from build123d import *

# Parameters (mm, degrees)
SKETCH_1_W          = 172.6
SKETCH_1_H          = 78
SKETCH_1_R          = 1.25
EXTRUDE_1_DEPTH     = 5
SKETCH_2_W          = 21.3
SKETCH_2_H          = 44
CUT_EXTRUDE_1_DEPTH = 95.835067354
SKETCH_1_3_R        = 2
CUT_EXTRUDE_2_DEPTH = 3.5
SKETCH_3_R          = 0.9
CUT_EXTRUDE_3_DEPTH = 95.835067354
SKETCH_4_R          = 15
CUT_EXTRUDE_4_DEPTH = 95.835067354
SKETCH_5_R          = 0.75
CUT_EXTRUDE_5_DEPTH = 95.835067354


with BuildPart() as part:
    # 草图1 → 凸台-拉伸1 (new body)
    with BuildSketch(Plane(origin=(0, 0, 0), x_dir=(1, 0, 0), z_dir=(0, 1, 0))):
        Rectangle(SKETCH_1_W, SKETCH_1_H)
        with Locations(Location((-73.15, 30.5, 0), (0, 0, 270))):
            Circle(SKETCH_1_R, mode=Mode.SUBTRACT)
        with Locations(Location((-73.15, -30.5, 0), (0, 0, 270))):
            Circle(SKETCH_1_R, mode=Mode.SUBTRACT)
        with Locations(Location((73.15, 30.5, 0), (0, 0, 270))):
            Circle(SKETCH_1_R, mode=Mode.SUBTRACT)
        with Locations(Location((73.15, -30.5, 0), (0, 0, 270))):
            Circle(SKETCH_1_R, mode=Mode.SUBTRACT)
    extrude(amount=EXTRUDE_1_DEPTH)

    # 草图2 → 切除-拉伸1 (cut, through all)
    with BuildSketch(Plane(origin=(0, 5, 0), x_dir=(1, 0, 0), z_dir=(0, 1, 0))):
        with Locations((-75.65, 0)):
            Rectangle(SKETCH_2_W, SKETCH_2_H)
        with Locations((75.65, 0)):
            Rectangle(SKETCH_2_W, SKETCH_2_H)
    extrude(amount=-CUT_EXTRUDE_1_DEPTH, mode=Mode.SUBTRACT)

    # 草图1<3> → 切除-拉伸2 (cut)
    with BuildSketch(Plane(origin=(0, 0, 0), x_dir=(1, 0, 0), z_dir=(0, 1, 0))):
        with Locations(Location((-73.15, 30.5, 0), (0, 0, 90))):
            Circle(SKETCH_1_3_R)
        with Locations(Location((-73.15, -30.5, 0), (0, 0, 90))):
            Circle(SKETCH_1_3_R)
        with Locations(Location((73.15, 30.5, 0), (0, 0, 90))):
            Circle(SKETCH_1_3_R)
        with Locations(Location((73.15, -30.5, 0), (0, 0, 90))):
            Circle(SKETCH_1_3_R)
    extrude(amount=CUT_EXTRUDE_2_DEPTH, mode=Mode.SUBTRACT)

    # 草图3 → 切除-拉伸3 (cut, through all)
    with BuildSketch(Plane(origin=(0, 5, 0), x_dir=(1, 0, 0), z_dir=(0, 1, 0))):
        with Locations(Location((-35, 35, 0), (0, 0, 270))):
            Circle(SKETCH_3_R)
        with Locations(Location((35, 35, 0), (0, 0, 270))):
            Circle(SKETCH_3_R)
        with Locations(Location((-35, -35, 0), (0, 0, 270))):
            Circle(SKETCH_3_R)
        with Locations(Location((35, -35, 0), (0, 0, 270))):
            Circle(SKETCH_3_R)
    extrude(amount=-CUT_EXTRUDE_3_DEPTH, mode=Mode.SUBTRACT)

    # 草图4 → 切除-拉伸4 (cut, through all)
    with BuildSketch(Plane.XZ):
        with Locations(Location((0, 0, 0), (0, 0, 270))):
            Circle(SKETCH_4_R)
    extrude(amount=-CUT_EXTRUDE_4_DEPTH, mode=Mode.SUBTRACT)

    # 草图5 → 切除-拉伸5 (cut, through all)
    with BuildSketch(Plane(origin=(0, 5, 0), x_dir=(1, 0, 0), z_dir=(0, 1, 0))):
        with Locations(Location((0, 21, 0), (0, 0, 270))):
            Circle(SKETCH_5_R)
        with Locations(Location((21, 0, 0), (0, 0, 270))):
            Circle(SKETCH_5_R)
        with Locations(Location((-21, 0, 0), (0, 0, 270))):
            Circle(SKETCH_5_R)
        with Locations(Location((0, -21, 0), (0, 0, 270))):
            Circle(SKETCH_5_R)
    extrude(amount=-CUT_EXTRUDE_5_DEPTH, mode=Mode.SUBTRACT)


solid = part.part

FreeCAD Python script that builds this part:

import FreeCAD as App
import Part
import Sketcher

V = App.Vector
Q = App.Units.Quantity

doc = App.newDocument("Part")
params = doc.addObject("Spreadsheet::Sheet", "Params")
for row, (alias, value) in enumerate([
    ("sketch1_diameter", "2.5 mm"),
    ("sketch1_height", "78 mm"),
    ("sketch1_width", "172.6 mm"),
    ("pad1_length", "5 mm"),
    ("sketch2_height", "44 mm"),
    ("sketch2_width", "21.3 mm"),
    ("sketch3_diameter", "4 mm"),
    ("pocket2_length", "3.5 mm"),
    ("sketch4_diameter", "1.8 mm"),
    ("sketch5_diameter", "30 mm"),
    ("sketch6_diameter", "1.5 mm"),
], start=1):
    params.set(f"A{row}", alias)
    params.set(f"B{row}", "=" + value)
    params.setAlias(f"B{row}", alias)

body = doc.addObject("PartDesign::Body", "Body")

# Sketch on XZ plane
sketch1 = doc.addObject("Sketcher::SketchObject", "Sketch")
body.addObject(sketch1)
sketch1.AttachmentSupport = (doc.XZ_Plane, [""])
sketch1.MapMode = "FlatFace"
sketch1.addGeometry([
    Part.LineSegment(V(-86.3, -39, 0), V(-86.3, 39, 0)),  # 0
    Part.LineSegment(V(-86.3, 39, 0), V(86.3, 39, 0)),  # 1
    Part.LineSegment(V(86.3, 39, 0), V(86.3, -39, 0)),  # 2
    Part.LineSegment(V(86.3, -39, 0), V(-86.3, -39, 0)),  # 3
    Part.Circle(V(-73.2, 30.5, 0), V(0, 0, 1), 1.2),  # 4
    Part.Circle(V(73.2, 30.5, 0), V(0, 0, 1), 1.2),  # 5
    Part.Circle(V(-73.2, -30.5, 0), V(0, 0, 1), 1.2),  # 6
    Part.Circle(V(73.2, -30.5, 0), V(0, 0, 1), 1.2),  # 7
], False)
sketch1.addConstraint([
    Sketcher.Constraint("Coincident", 0, 2, 1, 1),
    Sketcher.Constraint("Coincident", 1, 2, 2, 1),
    Sketcher.Constraint("Coincident", 2, 2, 3, 1),
    Sketcher.Constraint("Coincident", 3, 2, 0, 1),
    Sketcher.Constraint("Vertical", 0),
    Sketcher.Constraint("Horizontal", 1),
    Sketcher.Constraint("Vertical", 2),
    Sketcher.Constraint("Horizontal", 3),
    Sketcher.Constraint("Equal", 4, 5),
    Sketcher.Constraint("Equal", 5, 6),
    Sketcher.Constraint("Equal", 6, 7),
    Sketcher.Constraint("Symmetric", 5, 3, 6, 3, -1, 1),
    Sketcher.Constraint("Symmetric", 4, 3, 7, 3, -1, 1),
    Sketcher.Constraint("Symmetric", 0, 2, 2, 2, -1, 1),
    Sketcher.Constraint("Symmetric", 4, 3, 5, 3, -2),
    Sketcher.Constraint("Diameter", 4, Q("2.5 mm")),
    Sketcher.Constraint("DistanceY", 0, 1, 0, 2, Q("78 mm")),
    Sketcher.Constraint("DistanceX", 1, 1, 1, 2, Q("172.6 mm")),
    Sketcher.Constraint("DistanceY", 6, 3, 4, 3, Q("61 mm")),
    Sketcher.Constraint("DistanceX", 4, 3, 5, 3, Q("146.3 mm")),
])
sketch1.setExpression("Constraints[15]", "Params.sketch1_diameter")
sketch1.setExpression("Constraints[16]", "Params.sketch1_height")
sketch1.setExpression("Constraints[17]", "Params.sketch1_width")
pad1 = doc.addObject("PartDesign::Pad", "Pad")
body.addObject(pad1)
pad1.Profile = sketch1
pad1.setExpression("Length", "Params.pad1_length")
pad1.Reversed = True

# Sketch on XZ plane
sketch2 = doc.addObject("Sketcher::SketchObject", "Sketch001")
body.addObject(sketch2)
sketch2.AttachmentSupport = (doc.XZ_Plane, [""])
sketch2.MapMode = "FlatFace"
sketch2.AttachmentOffset = App.Placement(V(0, 0, -5), App.Rotation())
sketch2.addGeometry([
    Part.LineSegment(V(-86, -22, 0), V(-86, 22, 0)),  # 0
    Part.LineSegment(V(-86, 22, 0), V(-65, 22, 0)),  # 1
    Part.LineSegment(V(-65, 22, 0), V(-65, -22, 0)),  # 2
    Part.LineSegment(V(-65, -22, 0), V(-86, -22, 0)),  # 3
    Part.LineSegment(V(65, -22, 0), V(65, 22, 0)),  # 4
    Part.LineSegment(V(65, 22, 0), V(86, 22, 0)),  # 5
    Part.LineSegment(V(86, 22, 0), V(86, -22, 0)),  # 6
    Part.LineSegment(V(86, -22, 0), V(65, -22, 0)),  # 7
], False)
sketch2.addConstraint([
    Sketcher.Constraint("Coincident", 0, 2, 1, 1),
    Sketcher.Constraint("Coincident", 1, 2, 2, 1),
    Sketcher.Constraint("Coincident", 2, 2, 3, 1),
    Sketcher.Constraint("Coincident", 3, 2, 0, 1),
    Sketcher.Constraint("Coincident", 4, 2, 5, 1),
    Sketcher.Constraint("Coincident", 5, 2, 6, 1),
    Sketcher.Constraint("Coincident", 6, 2, 7, 1),
    Sketcher.Constraint("Coincident", 7, 2, 4, 1),
    Sketcher.Constraint("Vertical", 0),
    Sketcher.Constraint("Horizontal", 1),
    Sketcher.Constraint("Vertical", 2),
    Sketcher.Constraint("Horizontal", 3),
    Sketcher.Constraint("Vertical", 4),
    Sketcher.Constraint("Horizontal", 5),
    Sketcher.Constraint("Vertical", 6),
    Sketcher.Constraint("Horizontal", 7),
    Sketcher.Constraint("Symmetric", 2, 2, 4, 2, -1, 1),
    Sketcher.Constraint("Symmetric", 0, 2, 6, 2, -1, 1),
    Sketcher.Constraint("Horizontal", 1, 2, 4, 2),
    Sketcher.Constraint("DistanceY", 0, 1, 0, 2, Q("44 mm")),
    Sketcher.Constraint("DistanceX", 1, 1, 1, 2, Q("21.3 mm")),
    Sketcher.Constraint("DistanceX", 1, 2, -1, 1, Q("65 mm")),
])
sketch2.setExpression("Constraints[19]", "Params.sketch2_height")
sketch2.setExpression("Constraints[20]", "Params.sketch2_width")
pocket1 = doc.addObject("PartDesign::Pocket", "Pocket")
body.addObject(pocket1)
pocket1.Profile = sketch2
pocket1.Type = "ThroughAll"
pocket1.Reversed = True

# Sketch on XZ plane
sketch3 = doc.addObject("Sketcher::SketchObject", "Sketch002")
body.addObject(sketch3)
sketch3.AttachmentSupport = (doc.XZ_Plane, [""])
sketch3.MapMode = "FlatFace"
sketch3.addGeometry([
    Part.Circle(V(-73.2, -30.5, 0), V(0, 0, 1), 2),
    Part.Circle(V(-73.2, 30.5, 0), V(0, 0, 1), 2),
    Part.Circle(V(73.2, -30.5, 0), V(0, 0, 1), 2),
    Part.Circle(V(73.2, 30.5, 0), V(0, 0, 1), 2),
], False)
sketch3.addConstraint([
    Sketcher.Constraint("Equal", 0, 1),
    Sketcher.Constraint("Equal", 1, 2),
    Sketcher.Constraint("Equal", 2, 3),
    Sketcher.Constraint("Symmetric", 1, 3, 2, 3, -1, 1),
    Sketcher.Constraint("Symmetric", 0, 3, 3, 3, -1, 1),
    Sketcher.Constraint("Symmetric", 0, 3, 2, 3, -2),
    Sketcher.Constraint("Diameter", 0, Q("4 mm")),
    Sketcher.Constraint("DistanceY", 0, 3, 1, 3, Q("61 mm")),
    Sketcher.Constraint("DistanceX", 0, 3, 2, 3, Q("146.3 mm")),
])
sketch3.setExpression("Constraints[6]", "Params.sketch3_diameter")
pocket2 = doc.addObject("PartDesign::Pocket", "Pocket001")
body.addObject(pocket2)
pocket2.Profile = sketch3
pocket2.setExpression("Length", "Params.pocket2_length")

# Sketch on XZ plane
sketch4 = doc.addObject("Sketcher::SketchObject", "Sketch003")
body.addObject(sketch4)
sketch4.AttachmentSupport = (doc.XZ_Plane, [""])
sketch4.MapMode = "FlatFace"
sketch4.AttachmentOffset = App.Placement(V(0, 0, -5), App.Rotation())
sketch4.addGeometry([
    Part.Circle(V(-35, -35, 0), V(0, 0, 1), 0.9),
    Part.Circle(V(35, -35, 0), V(0, 0, 1), 0.9),
    Part.Circle(V(-35, 35, 0), V(0, 0, 1), 0.9),
    Part.Circle(V(35, 35, 0), V(0, 0, 1), 0.9),
], False)
sketch4.addConstraint([
    Sketcher.Constraint("Equal", 0, 1),
    Sketcher.Constraint("Equal", 1, 2),
    Sketcher.Constraint("Equal", 2, 3),
    Sketcher.Constraint("Symmetric", 1, 3, 2, 3, -1, 1),
    Sketcher.Constraint("Symmetric", 0, 3, 3, 3, -1, 1),
    Sketcher.Constraint("Symmetric", 0, 3, 1, 3, -2),
    Sketcher.Constraint("Diameter", 0, Q("1.8 mm")),
    Sketcher.Constraint("DistanceX", 0, 3, -1, 1, Q("35 mm")),
    Sketcher.Constraint("DistanceY", 0, 3, -1, 1, Q("35 mm")),
])
sketch4.setExpression("Constraints[6]", "Params.sketch4_diameter")
pocket3 = doc.addObject("PartDesign::Pocket", "Pocket002")
body.addObject(pocket3)
pocket3.Profile = sketch4
pocket3.Type = "ThroughAll"
pocket3.Reversed = True

# Sketch on XZ plane
sketch5 = doc.addObject("Sketcher::SketchObject", "Sketch004")
body.addObject(sketch5)
sketch5.AttachmentSupport = (doc.XZ_Plane, [""])
sketch5.MapMode = "FlatFace"
sketch5.addGeometry(Part.Circle(V(0, 0, 0), V(0, 0, 1), 15), False)
sketch5.addConstraint([
    Sketcher.Constraint("Coincident", 0, 3, -1, 1),
    Sketcher.Constraint("Diameter", 0, Q("30 mm")),
])
sketch5.setExpression("Constraints[1]", "Params.sketch5_diameter")
pocket4 = doc.addObject("PartDesign::Pocket", "Pocket003")
body.addObject(pocket4)
pocket4.Profile = sketch5
pocket4.Type = "ThroughAll"

# Sketch on XZ plane
sketch6 = doc.addObject("Sketcher::SketchObject", "Sketch005")
body.addObject(sketch6)
sketch6.AttachmentSupport = (doc.XZ_Plane, [""])
sketch6.MapMode = "FlatFace"
sketch6.AttachmentOffset = App.Placement(V(0, 0, -5), App.Rotation())
sketch6.addGeometry([
    Part.Circle(V(0, -21, 0), V(0, 0, 1), 0.8),
    Part.Circle(V(21, 0, 0), V(0, 0, 1), 0.8),
    Part.Circle(V(-21, 0, 0), V(0, 0, 1), 0.8),
    Part.Circle(V(0, 21, 0), V(0, 0, 1), 0.8),
], False)
sketch6.addConstraint([
    Sketcher.Constraint("Equal", 0, 1),
    Sketcher.Constraint("Equal", 1, 2),
    Sketcher.Constraint("Equal", 2, 3),
    Sketcher.Constraint("Symmetric", 1, 3, 2, 3, -1, 1),
    Sketcher.Constraint("Symmetric", 0, 3, 3, 3, -1, 1),
    Sketcher.Constraint("PointOnObject", 0, 3, -2),
    Sketcher.Constraint("PointOnObject", 1, 3, -1),
    Sketcher.Constraint("Diameter", 0, Q("1.5 mm")),
    Sketcher.Constraint("DistanceY", 0, 3, -1, 1, Q("21 mm")),
    Sketcher.Constraint("DistanceX", -1, 1, 1, 3, Q("21 mm")),
])
sketch6.setExpression("Constraints[7]", "Params.sketch6_diameter")
pocket5 = doc.addObject("PartDesign::Pocket", "Pocket004")
body.addObject(pocket5)
pocket5.Profile = sketch6
pocket5.Type = "ThroughAll"
pocket5.Reversed = True

doc.recompute()
